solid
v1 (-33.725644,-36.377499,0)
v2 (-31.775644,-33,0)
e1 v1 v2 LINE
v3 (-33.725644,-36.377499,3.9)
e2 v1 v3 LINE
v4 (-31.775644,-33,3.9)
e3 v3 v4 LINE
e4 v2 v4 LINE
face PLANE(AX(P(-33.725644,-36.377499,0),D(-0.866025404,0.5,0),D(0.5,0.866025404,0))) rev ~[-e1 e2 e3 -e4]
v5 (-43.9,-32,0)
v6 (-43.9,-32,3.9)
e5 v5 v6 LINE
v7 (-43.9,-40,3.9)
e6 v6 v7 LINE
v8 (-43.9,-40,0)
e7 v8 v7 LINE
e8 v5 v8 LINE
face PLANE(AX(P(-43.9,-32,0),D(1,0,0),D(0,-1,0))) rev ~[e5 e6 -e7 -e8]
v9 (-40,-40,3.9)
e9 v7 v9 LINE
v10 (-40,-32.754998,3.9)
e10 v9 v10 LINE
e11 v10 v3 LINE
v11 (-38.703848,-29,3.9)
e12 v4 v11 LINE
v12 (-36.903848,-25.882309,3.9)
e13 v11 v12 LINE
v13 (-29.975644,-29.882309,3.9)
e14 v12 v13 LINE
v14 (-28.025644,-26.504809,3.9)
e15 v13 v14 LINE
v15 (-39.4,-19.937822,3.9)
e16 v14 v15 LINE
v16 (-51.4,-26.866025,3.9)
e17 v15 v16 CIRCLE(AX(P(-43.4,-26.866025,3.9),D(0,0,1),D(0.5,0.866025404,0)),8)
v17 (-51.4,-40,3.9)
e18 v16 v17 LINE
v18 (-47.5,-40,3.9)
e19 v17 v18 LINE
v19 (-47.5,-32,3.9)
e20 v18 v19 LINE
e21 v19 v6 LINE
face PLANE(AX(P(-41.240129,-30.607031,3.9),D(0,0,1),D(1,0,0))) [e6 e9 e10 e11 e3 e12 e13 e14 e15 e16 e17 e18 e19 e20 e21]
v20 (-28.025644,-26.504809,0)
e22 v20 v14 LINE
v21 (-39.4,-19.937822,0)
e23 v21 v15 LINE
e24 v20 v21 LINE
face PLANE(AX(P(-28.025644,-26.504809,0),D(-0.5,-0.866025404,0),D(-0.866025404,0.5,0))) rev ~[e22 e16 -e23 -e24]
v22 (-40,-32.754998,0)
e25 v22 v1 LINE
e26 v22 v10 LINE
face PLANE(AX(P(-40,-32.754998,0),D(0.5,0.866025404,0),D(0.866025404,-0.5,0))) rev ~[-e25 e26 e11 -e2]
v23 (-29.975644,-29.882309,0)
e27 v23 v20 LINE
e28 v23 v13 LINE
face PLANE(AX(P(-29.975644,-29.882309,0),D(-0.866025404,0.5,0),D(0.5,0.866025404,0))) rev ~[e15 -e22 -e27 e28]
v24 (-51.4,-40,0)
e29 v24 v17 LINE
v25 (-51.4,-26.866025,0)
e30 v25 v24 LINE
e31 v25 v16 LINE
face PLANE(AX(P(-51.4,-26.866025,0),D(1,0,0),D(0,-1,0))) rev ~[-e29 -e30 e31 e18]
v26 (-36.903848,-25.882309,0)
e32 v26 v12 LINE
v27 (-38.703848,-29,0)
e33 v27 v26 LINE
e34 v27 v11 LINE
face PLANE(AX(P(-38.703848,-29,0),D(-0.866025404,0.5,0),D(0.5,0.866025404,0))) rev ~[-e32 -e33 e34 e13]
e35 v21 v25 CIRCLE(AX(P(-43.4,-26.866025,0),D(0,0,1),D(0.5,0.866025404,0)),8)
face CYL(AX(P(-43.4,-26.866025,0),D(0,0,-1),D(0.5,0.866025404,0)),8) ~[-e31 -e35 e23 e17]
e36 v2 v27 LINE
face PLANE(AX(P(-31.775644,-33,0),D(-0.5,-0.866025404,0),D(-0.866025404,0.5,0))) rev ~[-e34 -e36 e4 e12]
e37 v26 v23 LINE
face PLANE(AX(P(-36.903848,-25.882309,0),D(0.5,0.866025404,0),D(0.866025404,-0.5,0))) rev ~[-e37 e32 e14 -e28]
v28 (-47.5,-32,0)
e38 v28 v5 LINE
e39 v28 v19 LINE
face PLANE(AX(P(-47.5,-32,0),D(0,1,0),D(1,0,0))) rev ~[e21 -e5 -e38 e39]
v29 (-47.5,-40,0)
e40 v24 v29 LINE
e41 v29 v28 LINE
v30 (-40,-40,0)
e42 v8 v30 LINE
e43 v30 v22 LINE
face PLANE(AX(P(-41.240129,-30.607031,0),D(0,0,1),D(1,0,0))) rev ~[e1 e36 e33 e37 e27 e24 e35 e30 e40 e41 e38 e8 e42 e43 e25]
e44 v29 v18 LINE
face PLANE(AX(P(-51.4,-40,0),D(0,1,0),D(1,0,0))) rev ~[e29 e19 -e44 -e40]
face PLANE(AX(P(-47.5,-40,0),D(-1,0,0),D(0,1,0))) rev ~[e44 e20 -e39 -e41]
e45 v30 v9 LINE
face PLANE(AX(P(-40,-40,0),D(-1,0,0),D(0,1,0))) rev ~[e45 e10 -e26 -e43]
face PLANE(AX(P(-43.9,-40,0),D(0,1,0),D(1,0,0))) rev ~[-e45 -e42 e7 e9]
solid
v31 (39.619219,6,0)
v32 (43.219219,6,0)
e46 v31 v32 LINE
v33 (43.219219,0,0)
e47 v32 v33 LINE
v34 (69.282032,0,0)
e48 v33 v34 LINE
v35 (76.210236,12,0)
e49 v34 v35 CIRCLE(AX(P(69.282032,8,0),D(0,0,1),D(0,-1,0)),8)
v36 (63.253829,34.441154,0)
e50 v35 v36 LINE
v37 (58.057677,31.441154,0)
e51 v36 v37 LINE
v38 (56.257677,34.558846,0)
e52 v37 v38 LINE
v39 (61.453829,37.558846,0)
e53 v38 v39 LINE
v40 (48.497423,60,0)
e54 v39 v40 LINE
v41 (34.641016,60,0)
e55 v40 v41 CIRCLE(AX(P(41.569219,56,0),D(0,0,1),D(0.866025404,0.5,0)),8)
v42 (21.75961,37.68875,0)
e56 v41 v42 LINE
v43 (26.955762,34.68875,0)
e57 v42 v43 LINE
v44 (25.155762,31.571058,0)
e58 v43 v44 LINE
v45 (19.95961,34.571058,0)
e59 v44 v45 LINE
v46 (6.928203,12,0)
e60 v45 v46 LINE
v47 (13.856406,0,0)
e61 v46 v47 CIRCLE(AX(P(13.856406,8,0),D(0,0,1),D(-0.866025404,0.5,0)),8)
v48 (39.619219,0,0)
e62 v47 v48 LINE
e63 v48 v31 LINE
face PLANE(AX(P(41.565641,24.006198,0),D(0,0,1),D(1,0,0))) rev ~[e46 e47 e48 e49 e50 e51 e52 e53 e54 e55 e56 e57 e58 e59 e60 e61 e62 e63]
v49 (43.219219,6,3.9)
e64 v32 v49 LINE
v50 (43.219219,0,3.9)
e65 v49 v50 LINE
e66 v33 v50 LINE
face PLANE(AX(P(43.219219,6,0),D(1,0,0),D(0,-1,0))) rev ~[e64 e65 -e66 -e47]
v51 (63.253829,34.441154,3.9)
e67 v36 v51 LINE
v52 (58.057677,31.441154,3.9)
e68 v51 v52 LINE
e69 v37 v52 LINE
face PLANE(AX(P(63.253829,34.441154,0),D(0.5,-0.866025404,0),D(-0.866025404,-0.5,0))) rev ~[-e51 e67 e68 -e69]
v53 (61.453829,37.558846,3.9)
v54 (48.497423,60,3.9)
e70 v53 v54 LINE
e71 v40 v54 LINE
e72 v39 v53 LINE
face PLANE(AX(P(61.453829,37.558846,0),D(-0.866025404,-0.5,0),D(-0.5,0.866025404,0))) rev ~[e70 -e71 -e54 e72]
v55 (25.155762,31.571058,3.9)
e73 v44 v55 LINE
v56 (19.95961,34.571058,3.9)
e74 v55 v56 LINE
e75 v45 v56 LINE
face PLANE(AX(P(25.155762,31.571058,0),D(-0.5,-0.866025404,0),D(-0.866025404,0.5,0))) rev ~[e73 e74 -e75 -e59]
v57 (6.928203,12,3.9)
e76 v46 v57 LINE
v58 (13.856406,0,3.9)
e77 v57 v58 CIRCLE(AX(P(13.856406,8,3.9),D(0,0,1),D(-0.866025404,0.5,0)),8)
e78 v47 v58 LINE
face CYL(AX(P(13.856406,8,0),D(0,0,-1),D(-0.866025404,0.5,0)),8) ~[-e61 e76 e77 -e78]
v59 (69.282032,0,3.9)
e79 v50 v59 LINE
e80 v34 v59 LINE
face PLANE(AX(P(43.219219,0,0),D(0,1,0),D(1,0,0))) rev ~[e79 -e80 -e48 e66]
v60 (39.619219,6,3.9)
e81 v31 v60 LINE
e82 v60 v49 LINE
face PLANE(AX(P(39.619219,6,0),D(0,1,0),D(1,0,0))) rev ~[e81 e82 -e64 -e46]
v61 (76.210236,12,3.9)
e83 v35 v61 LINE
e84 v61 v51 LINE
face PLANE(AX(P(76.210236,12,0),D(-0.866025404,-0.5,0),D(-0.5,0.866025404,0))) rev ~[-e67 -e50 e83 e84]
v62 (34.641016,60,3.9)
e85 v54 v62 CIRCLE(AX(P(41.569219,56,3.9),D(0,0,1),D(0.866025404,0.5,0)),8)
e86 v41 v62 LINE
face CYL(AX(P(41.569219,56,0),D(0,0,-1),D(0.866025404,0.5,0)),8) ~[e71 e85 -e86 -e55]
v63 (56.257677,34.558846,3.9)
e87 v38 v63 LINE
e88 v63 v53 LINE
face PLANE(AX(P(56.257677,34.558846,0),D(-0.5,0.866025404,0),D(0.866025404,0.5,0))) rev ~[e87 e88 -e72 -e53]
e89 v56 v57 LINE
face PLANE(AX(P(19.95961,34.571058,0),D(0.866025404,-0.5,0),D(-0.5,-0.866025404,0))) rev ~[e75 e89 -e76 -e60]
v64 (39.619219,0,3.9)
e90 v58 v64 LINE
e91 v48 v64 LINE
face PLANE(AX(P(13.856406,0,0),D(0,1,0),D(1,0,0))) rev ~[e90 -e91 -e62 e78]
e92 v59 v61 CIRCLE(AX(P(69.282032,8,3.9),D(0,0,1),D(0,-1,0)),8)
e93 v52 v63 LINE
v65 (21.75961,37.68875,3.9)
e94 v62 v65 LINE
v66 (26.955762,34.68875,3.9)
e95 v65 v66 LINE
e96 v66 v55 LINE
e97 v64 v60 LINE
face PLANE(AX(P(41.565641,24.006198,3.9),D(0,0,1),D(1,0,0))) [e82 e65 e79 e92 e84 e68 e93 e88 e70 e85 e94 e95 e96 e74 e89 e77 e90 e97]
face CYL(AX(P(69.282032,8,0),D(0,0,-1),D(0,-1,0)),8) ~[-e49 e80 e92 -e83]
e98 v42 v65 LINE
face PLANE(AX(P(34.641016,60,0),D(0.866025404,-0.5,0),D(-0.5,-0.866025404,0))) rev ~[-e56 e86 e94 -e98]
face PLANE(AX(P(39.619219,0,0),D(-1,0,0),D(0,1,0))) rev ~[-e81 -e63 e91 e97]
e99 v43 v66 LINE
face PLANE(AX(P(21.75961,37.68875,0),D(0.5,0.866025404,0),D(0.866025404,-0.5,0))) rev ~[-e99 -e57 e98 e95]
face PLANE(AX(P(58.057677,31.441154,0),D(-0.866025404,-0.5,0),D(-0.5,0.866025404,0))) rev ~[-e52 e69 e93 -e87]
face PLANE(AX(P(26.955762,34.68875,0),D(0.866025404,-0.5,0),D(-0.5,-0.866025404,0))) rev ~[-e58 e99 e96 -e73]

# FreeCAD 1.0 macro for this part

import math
import FreeCAD as App
import Part
import Sketcher
Q = App.Units.Quantity

doc = App.newDocument("Part")
body = doc.addObject("PartDesign::Body", "Body")

# Sketch on XY plane
sketch1 = body.newObject("Sketcher::SketchObject", "Sketch")
sketch1.AttachmentSupport = (doc.getObject("XY_Plane"), [""])
sketch1.MapMode = "FlatFace"
sketch1.addGeometry([
    Part.ArcOfCircle(Part.Circle(App.Vector(13.9, 8, 0), App.Vector(0, 0, 1), 8), math.radians(150), math.radians(270)),  # 0
    Part.LineSegment(App.Vector(13.9, 0, 0), App.Vector(39.6, 0, 0)),  # 1
    Part.LineSegment(App.Vector(39.6, 0, 0), App.Vector(39.6, 6, 0)),  # 2
    Part.LineSegment(App.Vector(39.6, 6, 0), App.Vector(43.2, 6, 0)),  # 3
    Part.LineSegment(App.Vector(43.2, 6, 0), App.Vector(43.2, 0, 0)),  # 4
    Part.LineSegment(App.Vector(43.2, 0, 0), App.Vector(69.3, 0, 0)),  # 5
    Part.ArcOfCircle(Part.Circle(App.Vector(69.3, 8, 0), App.Vector(0, 0, 1), 8), math.radians(-90), math.radians(30)),  # 6
    Part.LineSegment(App.Vector(76.2, 12, 0), App.Vector(63.3, 34.4, 0)),  # 7
    Part.LineSegment(App.Vector(63.3, 34.4, 0), App.Vector(58.1, 31.4, 0)),  # 8
    Part.LineSegment(App.Vector(58.1, 31.4, 0), App.Vector(56.3, 34.6, 0)),  # 9
    Part.LineSegment(App.Vector(56.3, 34.6, 0), App.Vector(61.5, 37.6, 0)),  # 10
    Part.LineSegment(App.Vector(61.5, 37.6, 0), App.Vector(48.5, 60, 0)),  # 11
    Part.ArcOfCircle(Part.Circle(App.Vector(41.6, 56, 0), App.Vector(0, 0, 1), 8), math.radians(30), math.radians(150)),  # 12
    Part.LineSegment(App.Vector(34.6, 60, 0), App.Vector(21.8, 37.7, 0)),  # 13
    Part.LineSegment(App.Vector(21.8, 37.7, 0), App.Vector(27, 34.7, 0)),  # 14
    Part.LineSegment(App.Vector(27, 34.7, 0), App.Vector(25.2, 31.6, 0)),  # 15
    Part.LineSegment(App.Vector(25.2, 31.6, 0), App.Vector(20, 34.6, 0)),  # 16
    Part.LineSegment(App.Vector(20, 34.6, 0), App.Vector(6.9, 12, 0)),  # 17
], False)
sketch1.addConstraint([
    Sketcher.Constraint("Tangent", 0, 2, 1, 1),
    Sketcher.Constraint("Coincident", 1, 2, 2, 1),
    Sketcher.Constraint("Coincident", 2, 2, 3, 1),
    Sketcher.Constraint("Coincident", 3, 2, 4, 1),
    Sketcher.Constraint("Coincident", 4, 2, 5, 1),
    Sketcher.Constraint("Tangent", 5, 2, 6, 1),
    Sketcher.Constraint("Tangent", 6, 2, 7, 1),
    Sketcher.Constraint("Coincident", 7, 2, 8, 1),
    Sketcher.Constraint("Coincident", 8, 2, 9, 1),
    Sketcher.Constraint("Coincident", 9, 2, 10, 1),
    Sketcher.Constraint("Coincident", 10, 2, 11, 1),
    Sketcher.Constraint("Tangent", 11, 2, 12, 1),
    Sketcher.Constraint("Tangent", 12, 2, 13, 1),
    Sketcher.Constraint("Coincident", 13, 2, 14, 1),
    Sketcher.Constraint("Coincident", 14, 2, 15, 1),
    Sketcher.Constraint("Coincident", 15, 2, 16, 1),
    Sketcher.Constraint("Coincident", 16, 2, 17, 1),
    Sketcher.Constraint("Tangent", 17, 2, 0, 1),
    Sketcher.Constraint("Horizontal", 1),
    Sketcher.Constraint("Vertical", 2),
    Sketcher.Constraint("Horizontal", 3),
    Sketcher.Constraint("Vertical", 4),
    Sketcher.Constraint("Horizontal", 5),
    Sketcher.Constraint("Equal", 0, 6),
    Sketcher.Constraint("Equal", 6, 12),
    Sketcher.Constraint("PointOnObject", 0, 2, -1),
    Sketcher.Constraint("PointOnObject", 4, 2, -1),
    Sketcher.Constraint("Perpendicular", 7, 8),
    Sketcher.Constraint("Perpendicular", 8, 9),
    Sketcher.Constraint("Perpendicular", 9, 10),
    Sketcher.Constraint("Perpendicular", 10, 11),
    Sketcher.Constraint("Perpendicular", 13, 14),
    Sketcher.Constraint("Perpendicular", 14, 15),
    Sketcher.Constraint("Perpendicular", 15, 16),
    Sketcher.Constraint("Perpendicular", 16, 17),
    Sketcher.Constraint("Horizontal", 11, 2, 12, 2),
    Sketcher.Constraint("Equal", 8, 10),
    Sketcher.Constraint("Equal", 7, 11),
    Sketcher.Constraint("Equal", 10, 14),
    Sketcher.Constraint("Equal", 9, 15),
    Sketcher.Constraint("Equal", 14, 16),
    Sketcher.Constraint("Radius", 0, 8.0),
    Sketcher.Constraint("DistanceY", 2, 1, 2, 2, 6.0),
    Sketcher.Constraint("Angle", 7, Q("120 deg")),
    Sketcher.Constraint("Distance", 8, 6.0),
    Sketcher.Constraint("DistanceX", 3, 1, 3, 2, 3.6),
    Sketcher.Constraint("DistanceY", -1, 1, 12, 3, 56.0),
    Sketcher.Constraint("Distance", 9, 3.6),
    Sketcher.Constraint("DistanceX", 1, 2, 12, 3, 1.95),
    Sketcher.Constraint("DistanceX", -1, 1, 12, 3, 41.569219),
    Sketcher.Constraint("DistanceX", -1, 1, 13, 2, 21.75961),
])
pad1 = body.newObject("PartDesign::Pad", "Pad")
pad1.Profile = sketch1
pad1.Length = 3.9
body2 = doc.addObject("PartDesign::Body", "Body001")

# Sketch on XY plane
sketch2 = body2.newObject("Sketcher::SketchObject", "Sketch001")
sketch2.AttachmentSupport = (doc.getObject("XY_Plane001"), [""])
sketch2.MapMode = "FlatFace"
sketch2.addGeometry([
    Part.LineSegment(App.Vector(-43.9, -40, 0), App.Vector(-40, -40, 0)),  # 0
    Part.LineSegment(App.Vector(-40, -40, 0), App.Vector(-40, -32.8, 0)),  # 1
    Part.LineSegment(App.Vector(-40, -32.8, 0), App.Vector(-33.7, -36.4, 0)),  # 2
    Part.LineSegment(App.Vector(-33.7, -36.4, 0), App.Vector(-31.8, -33, 0)),  # 3
    Part.LineSegment(App.Vector(-31.8, -33, 0), App.Vector(-38.7, -29, 0)),  # 4
    Part.LineSegment(App.Vector(-38.7, -29, 0), App.Vector(-36.9, -25.9, 0)),  # 5
    Part.LineSegment(App.Vector(-36.9, -25.9, 0), App.Vector(-30, -29.9, 0)),  # 6
    Part.LineSegment(App.Vector(-30, -29.9, 0), App.Vector(-28, -26.5, 0)),  # 7
    Part.LineSegment(App.Vector(-28, -26.5, 0), App.Vector(-39.4, -19.9, 0)),  # 8
    Part.ArcOfCircle(Part.Circle(App.Vector(-43.4, -26.9, 0), App.Vector(0, 0, 1), 8), math.radians(60), math.radians(180)),  # 9
    Part.LineSegment(App.Vector(-51.4, -26.9, 0), App.Vector(-51.4, -40, 0)),  # 10
    Part.LineSegment(App.Vector(-51.4, -40, 0), App.Vector(-47.5, -40, 0)),  # 11
    Part.LineSegment(App.Vector(-47.5, -40, 0), App.Vector(-47.5, -32, 0)),  # 12
    Part.LineSegment(App.Vector(-47.5, -32, 0), App.Vector(-43.9, -32, 0)),  # 13
    Part.LineSegment(App.Vector(-43.9, -32, 0), App.Vector(-43.9, -40, 0)),  # 14
], False)
sketch2.addConstraint([
    Sketcher.Constraint("Coincident", 0, 2, 1, 1),
    Sketcher.Constraint("Coincident", 1, 2, 2, 1),
    Sketcher.Constraint("Coincident", 2, 2, 3, 1),
    Sketcher.Constraint("Coincident", 3, 2, 4, 1),
    Sketcher.Constraint("Coincident", 4, 2, 5, 1),
    Sketcher.Constraint("Coincident", 5, 2, 6, 1),
    Sketcher.Constraint("Coincident", 6, 2, 7, 1),
    Sketcher.Constraint("Coincident", 7, 2, 8, 1),
    Sketcher.Constraint("Tangent", 8, 2, 9, 1),
    Sketcher.Constraint("Tangent", 9, 2, 10, 1),
    Sketcher.Constraint("Coincident", 10, 2, 11, 1),
    Sketcher.Constraint("Coincident", 11, 2, 12, 1),
    Sketcher.Constraint("Coincident", 12, 2, 13, 1),
    Sketcher.Constraint("Coincident", 13, 2, 14, 1),
    Sketcher.Constraint("Coincident", 14, 2, 0, 1),
    Sketcher.Constraint("Horizontal", 0),
    Sketcher.Constraint("Vertical", 1),
    Sketcher.Constraint("Vertical", 10),
    Sketcher.Constraint("Horizontal", 11),
    Sketcher.Constraint("Vertical", 12),
    Sketcher.Constraint("Horizontal", 13),
    Sketcher.Constraint("Vertical", 14),
    Sketcher.Constraint("Perpendicular", 2, 3),
    Sketcher.Constraint("Perpendicular", 3, 4),
    Sketcher.Constraint("Perpendicular", 4, 5),
    Sketcher.Constraint("Perpendicular", 5, 6),
    Sketcher.Constraint("Perpendicular", 6, 7),
    Sketcher.Constraint("Perpendicular", 7, 8),
    Sketcher.Constraint("Horizontal", 0, 2, 10, 2),
    Sketcher.Constraint("Equal", 0, 11),
    Sketcher.Constraint("Equal", 4, 6),
    Sketcher.Constraint("Equal", 3, 7),
    Sketcher.Constraint("Radius", 9, 8.0),
    Sketcher.Constraint("DistanceY", 12, 1, 12, 2, 8.0),
    Sketcher.Constraint("Angle", 2, Q("-30 deg")),
    Sketcher.Constraint("Distance", 4, 8.0),
    Sketcher.Constraint("DistanceX", 0, 1, 0, 2, 3.9),
    Sketcher.Constraint("DistanceX", 13, 1, 13, 2, 3.6),
    Sketcher.Constraint("DistanceX", 0, 2, -1, 1, 40.0),
    Sketcher.Constraint("DistanceY", 0, 2, -1, 1, 40.0),
    Sketcher.Constraint("DistanceY", 3, 2, -1, 1, 33.0),
    Sketcher.Constraint("Distance", 3, 3.9),
    Sketcher.Constraint("Distance", 5, 3.6),
    Sketcher.Constraint("DistanceY", 1, 1, 1, 2, 7.245002),
])
pad2 = body2.newObject("PartDesign::Pad", "Pad001")
pad2.Profile = sketch2
pad2.Length = 3.9

doc.recompute()
